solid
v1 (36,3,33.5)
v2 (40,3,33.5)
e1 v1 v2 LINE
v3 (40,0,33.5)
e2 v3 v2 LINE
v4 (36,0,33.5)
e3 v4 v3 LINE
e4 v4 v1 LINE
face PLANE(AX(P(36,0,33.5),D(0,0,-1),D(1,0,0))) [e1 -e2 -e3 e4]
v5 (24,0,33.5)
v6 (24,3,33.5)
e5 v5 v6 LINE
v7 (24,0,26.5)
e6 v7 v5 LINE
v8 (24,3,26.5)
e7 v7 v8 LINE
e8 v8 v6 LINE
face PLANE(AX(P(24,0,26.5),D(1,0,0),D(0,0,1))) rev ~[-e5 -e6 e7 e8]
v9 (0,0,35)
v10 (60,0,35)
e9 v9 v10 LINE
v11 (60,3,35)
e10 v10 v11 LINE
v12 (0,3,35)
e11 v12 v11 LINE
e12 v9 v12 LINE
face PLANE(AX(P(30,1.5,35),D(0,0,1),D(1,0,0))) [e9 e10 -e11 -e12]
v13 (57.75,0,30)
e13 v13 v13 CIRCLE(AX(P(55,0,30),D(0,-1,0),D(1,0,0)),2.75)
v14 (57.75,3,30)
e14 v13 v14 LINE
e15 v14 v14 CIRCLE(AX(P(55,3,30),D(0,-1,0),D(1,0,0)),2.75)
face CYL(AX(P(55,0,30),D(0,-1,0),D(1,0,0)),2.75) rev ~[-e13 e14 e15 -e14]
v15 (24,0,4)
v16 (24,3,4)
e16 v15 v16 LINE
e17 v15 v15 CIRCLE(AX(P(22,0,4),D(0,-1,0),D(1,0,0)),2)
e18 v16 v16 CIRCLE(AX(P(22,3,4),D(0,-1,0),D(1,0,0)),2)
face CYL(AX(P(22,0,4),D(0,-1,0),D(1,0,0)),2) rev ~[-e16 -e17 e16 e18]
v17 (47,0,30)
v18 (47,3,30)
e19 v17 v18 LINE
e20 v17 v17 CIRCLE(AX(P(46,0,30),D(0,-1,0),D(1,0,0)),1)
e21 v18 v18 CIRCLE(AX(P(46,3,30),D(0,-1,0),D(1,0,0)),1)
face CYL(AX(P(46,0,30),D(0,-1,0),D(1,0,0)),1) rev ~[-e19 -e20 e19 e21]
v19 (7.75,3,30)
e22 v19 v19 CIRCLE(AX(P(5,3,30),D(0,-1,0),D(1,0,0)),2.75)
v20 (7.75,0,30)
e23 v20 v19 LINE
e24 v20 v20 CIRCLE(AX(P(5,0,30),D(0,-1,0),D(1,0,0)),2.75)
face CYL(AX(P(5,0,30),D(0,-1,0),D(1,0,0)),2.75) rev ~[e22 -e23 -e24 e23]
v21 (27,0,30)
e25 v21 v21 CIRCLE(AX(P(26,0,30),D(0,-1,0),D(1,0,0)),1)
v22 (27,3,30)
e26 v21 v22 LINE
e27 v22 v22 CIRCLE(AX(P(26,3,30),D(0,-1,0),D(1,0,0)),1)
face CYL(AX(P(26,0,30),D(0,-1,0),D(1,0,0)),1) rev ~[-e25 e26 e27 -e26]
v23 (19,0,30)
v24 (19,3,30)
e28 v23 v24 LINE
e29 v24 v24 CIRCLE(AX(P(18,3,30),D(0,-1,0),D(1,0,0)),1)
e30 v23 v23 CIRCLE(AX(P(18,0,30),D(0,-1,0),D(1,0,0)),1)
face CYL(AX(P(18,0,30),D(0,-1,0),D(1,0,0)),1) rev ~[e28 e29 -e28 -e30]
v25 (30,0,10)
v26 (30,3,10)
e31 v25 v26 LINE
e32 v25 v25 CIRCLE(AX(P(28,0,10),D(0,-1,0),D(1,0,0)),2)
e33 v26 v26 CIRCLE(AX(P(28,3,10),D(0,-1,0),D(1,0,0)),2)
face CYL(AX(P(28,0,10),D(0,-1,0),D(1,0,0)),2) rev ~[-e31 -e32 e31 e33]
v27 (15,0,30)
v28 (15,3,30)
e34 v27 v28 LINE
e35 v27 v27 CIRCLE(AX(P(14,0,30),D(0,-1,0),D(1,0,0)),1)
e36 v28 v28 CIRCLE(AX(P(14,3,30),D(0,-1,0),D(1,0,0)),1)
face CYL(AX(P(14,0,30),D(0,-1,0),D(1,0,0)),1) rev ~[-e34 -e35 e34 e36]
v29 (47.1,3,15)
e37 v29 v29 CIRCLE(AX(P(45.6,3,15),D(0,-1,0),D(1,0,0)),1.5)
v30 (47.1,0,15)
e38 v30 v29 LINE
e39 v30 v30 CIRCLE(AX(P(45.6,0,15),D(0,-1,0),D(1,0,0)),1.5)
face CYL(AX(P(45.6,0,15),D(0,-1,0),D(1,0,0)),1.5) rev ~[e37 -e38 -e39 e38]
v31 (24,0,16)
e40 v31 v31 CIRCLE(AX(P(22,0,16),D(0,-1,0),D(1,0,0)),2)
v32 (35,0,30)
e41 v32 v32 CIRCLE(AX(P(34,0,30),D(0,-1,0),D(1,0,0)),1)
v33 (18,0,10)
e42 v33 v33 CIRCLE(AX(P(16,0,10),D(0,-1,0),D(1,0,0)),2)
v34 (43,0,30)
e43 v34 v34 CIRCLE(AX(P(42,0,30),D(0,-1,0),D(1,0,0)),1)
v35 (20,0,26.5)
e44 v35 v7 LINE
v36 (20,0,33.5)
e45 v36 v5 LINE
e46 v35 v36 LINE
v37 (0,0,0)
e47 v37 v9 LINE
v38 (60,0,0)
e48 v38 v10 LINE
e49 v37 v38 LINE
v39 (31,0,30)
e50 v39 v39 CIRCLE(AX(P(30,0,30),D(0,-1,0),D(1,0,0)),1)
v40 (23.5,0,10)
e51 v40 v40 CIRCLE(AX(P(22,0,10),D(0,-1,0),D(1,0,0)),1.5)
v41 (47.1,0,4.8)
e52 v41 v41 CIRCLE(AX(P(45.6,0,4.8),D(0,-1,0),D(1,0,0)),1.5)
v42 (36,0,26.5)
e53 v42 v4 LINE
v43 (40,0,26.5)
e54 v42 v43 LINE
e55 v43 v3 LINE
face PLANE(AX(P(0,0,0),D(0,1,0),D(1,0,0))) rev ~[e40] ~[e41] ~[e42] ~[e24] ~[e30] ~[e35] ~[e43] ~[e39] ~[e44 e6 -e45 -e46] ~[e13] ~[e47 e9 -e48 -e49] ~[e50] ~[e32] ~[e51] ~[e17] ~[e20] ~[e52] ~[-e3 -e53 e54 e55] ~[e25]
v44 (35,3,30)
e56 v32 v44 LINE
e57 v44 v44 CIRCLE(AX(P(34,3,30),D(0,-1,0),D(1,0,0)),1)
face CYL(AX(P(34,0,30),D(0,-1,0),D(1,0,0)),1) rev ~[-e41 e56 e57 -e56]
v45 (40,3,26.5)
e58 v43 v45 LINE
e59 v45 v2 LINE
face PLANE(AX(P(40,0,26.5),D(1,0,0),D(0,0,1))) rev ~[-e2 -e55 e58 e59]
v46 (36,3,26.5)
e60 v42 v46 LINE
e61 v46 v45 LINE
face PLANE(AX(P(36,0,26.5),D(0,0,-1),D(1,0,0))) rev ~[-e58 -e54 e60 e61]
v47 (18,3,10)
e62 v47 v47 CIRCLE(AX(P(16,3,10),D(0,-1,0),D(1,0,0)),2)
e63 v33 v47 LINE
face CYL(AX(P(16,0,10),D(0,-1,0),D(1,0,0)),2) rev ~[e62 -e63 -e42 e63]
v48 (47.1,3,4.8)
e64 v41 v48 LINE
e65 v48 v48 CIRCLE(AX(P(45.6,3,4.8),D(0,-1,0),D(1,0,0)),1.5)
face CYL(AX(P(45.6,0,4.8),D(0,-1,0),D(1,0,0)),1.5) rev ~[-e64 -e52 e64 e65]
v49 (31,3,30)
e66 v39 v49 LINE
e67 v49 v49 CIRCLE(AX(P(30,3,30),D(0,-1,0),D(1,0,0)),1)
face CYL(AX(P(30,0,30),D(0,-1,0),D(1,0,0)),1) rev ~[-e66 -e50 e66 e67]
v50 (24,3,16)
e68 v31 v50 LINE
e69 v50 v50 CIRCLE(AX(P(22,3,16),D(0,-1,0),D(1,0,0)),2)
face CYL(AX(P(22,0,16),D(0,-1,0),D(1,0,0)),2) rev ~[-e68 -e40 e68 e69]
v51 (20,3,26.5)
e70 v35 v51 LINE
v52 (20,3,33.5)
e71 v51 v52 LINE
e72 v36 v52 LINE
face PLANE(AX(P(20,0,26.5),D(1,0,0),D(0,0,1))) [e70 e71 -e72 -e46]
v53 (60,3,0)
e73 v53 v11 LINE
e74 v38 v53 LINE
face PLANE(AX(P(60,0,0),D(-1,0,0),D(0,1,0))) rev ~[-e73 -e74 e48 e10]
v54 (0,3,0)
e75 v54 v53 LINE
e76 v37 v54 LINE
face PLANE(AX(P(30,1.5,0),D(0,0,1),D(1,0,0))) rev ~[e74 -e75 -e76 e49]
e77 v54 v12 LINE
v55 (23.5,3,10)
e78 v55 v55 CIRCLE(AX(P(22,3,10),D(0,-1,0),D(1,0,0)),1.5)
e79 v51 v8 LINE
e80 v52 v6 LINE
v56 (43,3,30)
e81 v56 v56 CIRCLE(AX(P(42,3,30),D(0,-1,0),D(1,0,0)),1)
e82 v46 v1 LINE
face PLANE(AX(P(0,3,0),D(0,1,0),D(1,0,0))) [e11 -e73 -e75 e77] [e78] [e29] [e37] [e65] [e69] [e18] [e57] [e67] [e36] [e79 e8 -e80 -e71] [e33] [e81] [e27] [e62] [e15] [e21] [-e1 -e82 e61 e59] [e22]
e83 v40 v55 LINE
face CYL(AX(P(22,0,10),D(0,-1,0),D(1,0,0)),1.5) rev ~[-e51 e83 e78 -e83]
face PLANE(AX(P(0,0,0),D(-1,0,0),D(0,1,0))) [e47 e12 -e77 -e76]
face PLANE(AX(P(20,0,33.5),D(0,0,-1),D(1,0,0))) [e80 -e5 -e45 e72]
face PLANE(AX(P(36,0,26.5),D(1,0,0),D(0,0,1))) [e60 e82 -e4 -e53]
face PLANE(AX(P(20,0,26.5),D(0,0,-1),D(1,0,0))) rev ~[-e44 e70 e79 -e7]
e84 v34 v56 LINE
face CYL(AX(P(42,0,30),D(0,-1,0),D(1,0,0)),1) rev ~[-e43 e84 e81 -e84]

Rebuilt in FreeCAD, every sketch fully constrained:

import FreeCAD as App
import Part
import Sketcher
Q = App.Units.Quantity


def add_polygon(sketch, points):
    """Adds a closed chain of lines whose ends are joined by coincident constraints."""
    first, n = sketch.GeometryCount, len(points)
    for a, b in zip(points, points[1:] + points[:1]):
        sketch.addGeometry(Part.LineSegment(App.Vector(*a, 0), App.Vector(*b, 0)), False)
    for i in range(n):
        sketch.addConstraint(Sketcher.Constraint("Coincident", first + i, 2, first + (i + 1) % n, 1))

doc = App.newDocument("Part")
body = doc.addObject("PartDesign::Body", "Body")

# Sketch on XY plane
sketch1 = body.newObject("Sketcher::SketchObject", "Sketch")
sketch1.AttachmentSupport = (doc.getObject("XY_Plane"), [""])
sketch1.MapMode = "FlatFace"
add_polygon(sketch1, [(0, 3), (0, 0), (60, 0), (60, 3)])  # lines 0-3
sketch1.addConstraint(Sketcher.Constraint("Vertical", 0))
sketch1.addConstraint(Sketcher.Constraint("Horizontal", 1))
sketch1.addConstraint(Sketcher.Constraint("Vertical", 2))
sketch1.addConstraint(Sketcher.Constraint("Horizontal", 3))
sketch1.addConstraint(Sketcher.Constraint("Coincident", 0, 2, -1, 1))
sketch1.addConstraint(Sketcher.Constraint("DistanceX", 1, 1, 1, 2, Q("60 mm")))
sketch1.addConstraint(Sketcher.Constraint("DistanceY", 0, 2, 0, 1, Q("3 mm")))
pad1 = body.newObject("PartDesign::Pad", "Pad")
pad1.Profile = sketch1
pad1.Length = 35

# Sketch on XZ plane
sketch2 = body.newObject("Sketcher::SketchObject", "Sketch001")
sketch2.AttachmentSupport = (doc.getObject("XZ_Plane"), [""])
sketch2.MapMode = "FlatFace"
sketch2.addGeometry(Part.Circle(App.Vector(22, 10, 0), App.Vector(0, 0, 1), 1.5), False)  # 0
sketch2.addGeometry(Part.Circle(App.Vector(28, 10, 0), App.Vector(0, 0, 1), 2), False)  # 1
sketch2.addGeometry(Part.Circle(App.Vector(22, 16, 0), App.Vector(0, 0, 1), 2), False)  # 2
sketch2.addGeometry(Part.Circle(App.Vector(16, 10, 0), App.Vector(0, 0, 1), 2), False)  # 3
sketch2.addGeometry(Part.Circle(App.Vector(22, 4, 0), App.Vector(0, 0, 1), 2), False)  # 4
sketch2.addGeometry(Part.Circle(App.Vector(5, 30, 0), App.Vector(0, 0, 1), 2.8), False)  # 5
sketch2.addGeometry(Part.Circle(App.Vector(55, 30, 0), App.Vector(0, 0, 1), 2.8), False)  # 6
sketch2.addGeometry(Part.Circle(App.Vector(14, 30, 0), App.Vector(0, 0, 1), 1), False)  # 7
sketch2.addGeometry(Part.Circle(App.Vector(18, 30, 0), App.Vector(0, 0, 1), 1), False)  # 8
sketch2.addGeometry(Part.Circle(App.Vector(26, 30, 0), App.Vector(0, 0, 1), 1), False)  # 9
sketch2.addGeometry(Part.Circle(App.Vector(30, 30, 0), App.Vector(0, 0, 1), 1), False)  # 10
sketch2.addGeometry(Part.Circle(App.Vector(34, 30, 0), App.Vector(0, 0, 1), 1), False)  # 11
sketch2.addGeometry(Part.Circle(App.Vector(42, 30, 0), App.Vector(0, 0, 1), 1), False)  # 12
sketch2.addGeometry(Part.Circle(App.Vector(46, 30, 0), App.Vector(0, 0, 1), 1), False)  # 13
sketch2.addGeometry(Part.Circle(App.Vector(45.6, 15, 0), App.Vector(0, 0, 1), 1.5), False)  # 14
sketch2.addGeometry(Part.Circle(App.Vector(45.6, 4.8, 0), App.Vector(0, 0, 1), 1.5), False)  # 15
add_polygon(sketch2, [(20, 33.5), (20, 26.5), (24, 26.5), (24, 33.5)])  # lines 16-19
add_polygon(sketch2, [(36, 33.5), (36, 26.5), (40, 26.5), (40, 33.5)])  # lines 20-23
sketch2.addConstraint(Sketcher.Constraint("Vertical", 16))
sketch2.addConstraint(Sketcher.Constraint("Horizontal", 17))
sketch2.addConstraint(Sketcher.Constraint("Vertical", 18))
sketch2.addConstraint(Sketcher.Constraint("Horizontal", 19))
sketch2.addConstraint(Sketcher.Constraint("Vertical", 20))
sketch2.addConstraint(Sketcher.Constraint("Horizontal", 21))
sketch2.addConstraint(Sketcher.Constraint("Vertical", 22))
sketch2.addConstraint(Sketcher.Constraint("Horizontal", 23))
sketch2.addConstraint(Sketcher.Constraint("Equal", 1, 2))
sketch2.addConstraint(Sketcher.Constraint("Equal", 2, 3))
sketch2.addConstraint(Sketcher.Constraint("Equal", 3, 4))
sketch2.addConstraint(Sketcher.Constraint("Equal", 5, 6))
sketch2.addConstraint(Sketcher.Constraint("Equal", 7, 8))
sketch2.addConstraint(Sketcher.Constraint("Equal", 8, 9))
sketch2.addConstraint(Sketcher.Constraint("Equal", 9, 10))
sketch2.addConstraint(Sketcher.Constraint("Equal", 10, 11))
sketch2.addConstraint(Sketcher.Constraint("Equal", 11, 12))
sketch2.addConstraint(Sketcher.Constraint("Equal", 12, 13))
sketch2.addConstraint(Sketcher.Constraint("Equal", 0, 14))
sketch2.addConstraint(Sketcher.Constraint("Equal", 14, 15))
sketch2.addConstraint(Sketcher.Constraint("Horizontal", 0, 3, 1, 3))
sketch2.addConstraint(Sketcher.Constraint("Horizontal", 1, 3, 3, 3))
sketch2.addConstraint(Sketcher.Constraint("Horizontal", 5, 3, 6, 3))
sketch2.addConstraint(Sketcher.Constraint("Horizontal", 6, 3, 7, 3))
sketch2.addConstraint(Sketcher.Constraint("Horizontal", 7, 3, 8, 3))
sketch2.addConstraint(Sketcher.Constraint("Horizontal", 8, 3, 9, 3))
sketch2.addConstraint(Sketcher.Constraint("Horizontal", 9, 3, 10, 3))
sketch2.addConstraint(Sketcher.Constraint("Horizontal", 10, 3, 11, 3))
sketch2.addConstraint(Sketcher.Constraint("Horizontal", 11, 3, 12, 3))
sketch2.addConstraint(Sketcher.Constraint("Horizontal", 12, 3, 13, 3))
sketch2.addConstraint(Sketcher.Constraint("Horizontal", 17, 2, 20, 2))
sketch2.addConstraint(Sketcher.Constraint("Horizontal", 19, 2, 22, 2))
sketch2.addConstraint(Sketcher.Constraint("Vertical", 0, 3, 2, 3))
sketch2.addConstraint(Sketcher.Constraint("Vertical", 2, 3, 4, 3))
sketch2.addConstraint(Sketcher.Constraint("Vertical", 14, 3, 15, 3))
sketch2.addConstraint(Sketcher.Constraint("Equal", 19, 21))
sketch2.addConstraint(Sketcher.Constraint("Diameter", 0, Q("3 mm")))
sketch2.addConstraint(Sketcher.Constraint("Diameter", 1, Q("4 mm")))
sketch2.addConstraint(Sketcher.Constraint("Diameter", 7, Q("2 mm")))
sketch2.addConstraint(Sketcher.Constraint("Diameter", 5, Q("5.5 mm")))
sketch2.addConstraint(Sketcher.Constraint("DistanceX", 17, 1, 17, 2, Q("4 mm")))
sketch2.addConstraint(Sketcher.Constraint("DistanceY", 16, 2, 16, 1, Q("7 mm")))
sketch2.addConstraint(Sketcher.Constraint("DistanceX", -1, 1, 0, 3, Q("22 mm")))
sketch2.addConstraint(Sketcher.Constraint("DistanceY", -1, 1, 0, 3, Q("10 mm")))
sketch2.addConstraint(Sketcher.Constraint("DistanceX", -1, 1, 1, 3, Q("28 mm")))
sketch2.addConstraint(Sketcher.Constraint("DistanceY", -1, 1, 2, 3, Q("16 mm")))
sketch2.addConstraint(Sketcher.Constraint("DistanceX", -1, 1, 3, 3, Q("16 mm")))
sketch2.addConstraint(Sketcher.Constraint("DistanceY", -1, 1, 4, 3, Q("4 mm")))
sketch2.addConstraint(Sketcher.Constraint("DistanceX", -1, 1, 5, 3, Q("5 mm")))
sketch2.addConstraint(Sketcher.Constraint("DistanceY", -1, 1, 5, 3, Q("30 mm")))
sketch2.addConstraint(Sketcher.Constraint("DistanceX", -1, 1, 6, 3, Q("55 mm")))
sketch2.addConstraint(Sketcher.Constraint("DistanceX", -1, 1, 7, 3, Q("14 mm")))
sketch2.addConstraint(Sketcher.Constraint("DistanceX", -1, 1, 8, 3, Q("18 mm")))
sketch2.addConstraint(Sketcher.Constraint("DistanceX", -1, 1, 9, 3, Q("26 mm")))
sketch2.addConstraint(Sketcher.Constraint("DistanceX", -1, 1, 10, 3, Q("30 mm")))
sketch2.addConstraint(Sketcher.Constraint("DistanceX", -1, 1, 11, 3, Q("34 mm")))
sketch2.addConstraint(Sketcher.Constraint("DistanceX", -1, 1, 12, 3, Q("42 mm")))
sketch2.addConstraint(Sketcher.Constraint("DistanceX", -1, 1, 13, 3, Q("46 mm")))
sketch2.addConstraint(Sketcher.Constraint("DistanceY", -1, 1, 14, 3, Q("15 mm")))
sketch2.addConstraint(Sketcher.Constraint("DistanceX", -1, 1, 16, 2, Q("20 mm")))
sketch2.addConstraint(Sketcher.Constraint("DistanceX", -1, 1, 20, 2, Q("36 mm")))
sketch2.addConstraint(Sketcher.Constraint("DistanceX", -1, 1, 14, 3, Q("45.6 mm")))
sketch2.addConstraint(Sketcher.Constraint("DistanceY", -1, 1, 15, 3, Q("4.8 mm")))
sketch2.addConstraint(Sketcher.Constraint("DistanceY", -1, 1, 16, 2, Q("26.5 mm")))
pocket1 = body.newObject("PartDesign::Pocket", "Pocket")
pocket1.Profile = sketch2
pocket1.Length = 3

doc.recompute()
